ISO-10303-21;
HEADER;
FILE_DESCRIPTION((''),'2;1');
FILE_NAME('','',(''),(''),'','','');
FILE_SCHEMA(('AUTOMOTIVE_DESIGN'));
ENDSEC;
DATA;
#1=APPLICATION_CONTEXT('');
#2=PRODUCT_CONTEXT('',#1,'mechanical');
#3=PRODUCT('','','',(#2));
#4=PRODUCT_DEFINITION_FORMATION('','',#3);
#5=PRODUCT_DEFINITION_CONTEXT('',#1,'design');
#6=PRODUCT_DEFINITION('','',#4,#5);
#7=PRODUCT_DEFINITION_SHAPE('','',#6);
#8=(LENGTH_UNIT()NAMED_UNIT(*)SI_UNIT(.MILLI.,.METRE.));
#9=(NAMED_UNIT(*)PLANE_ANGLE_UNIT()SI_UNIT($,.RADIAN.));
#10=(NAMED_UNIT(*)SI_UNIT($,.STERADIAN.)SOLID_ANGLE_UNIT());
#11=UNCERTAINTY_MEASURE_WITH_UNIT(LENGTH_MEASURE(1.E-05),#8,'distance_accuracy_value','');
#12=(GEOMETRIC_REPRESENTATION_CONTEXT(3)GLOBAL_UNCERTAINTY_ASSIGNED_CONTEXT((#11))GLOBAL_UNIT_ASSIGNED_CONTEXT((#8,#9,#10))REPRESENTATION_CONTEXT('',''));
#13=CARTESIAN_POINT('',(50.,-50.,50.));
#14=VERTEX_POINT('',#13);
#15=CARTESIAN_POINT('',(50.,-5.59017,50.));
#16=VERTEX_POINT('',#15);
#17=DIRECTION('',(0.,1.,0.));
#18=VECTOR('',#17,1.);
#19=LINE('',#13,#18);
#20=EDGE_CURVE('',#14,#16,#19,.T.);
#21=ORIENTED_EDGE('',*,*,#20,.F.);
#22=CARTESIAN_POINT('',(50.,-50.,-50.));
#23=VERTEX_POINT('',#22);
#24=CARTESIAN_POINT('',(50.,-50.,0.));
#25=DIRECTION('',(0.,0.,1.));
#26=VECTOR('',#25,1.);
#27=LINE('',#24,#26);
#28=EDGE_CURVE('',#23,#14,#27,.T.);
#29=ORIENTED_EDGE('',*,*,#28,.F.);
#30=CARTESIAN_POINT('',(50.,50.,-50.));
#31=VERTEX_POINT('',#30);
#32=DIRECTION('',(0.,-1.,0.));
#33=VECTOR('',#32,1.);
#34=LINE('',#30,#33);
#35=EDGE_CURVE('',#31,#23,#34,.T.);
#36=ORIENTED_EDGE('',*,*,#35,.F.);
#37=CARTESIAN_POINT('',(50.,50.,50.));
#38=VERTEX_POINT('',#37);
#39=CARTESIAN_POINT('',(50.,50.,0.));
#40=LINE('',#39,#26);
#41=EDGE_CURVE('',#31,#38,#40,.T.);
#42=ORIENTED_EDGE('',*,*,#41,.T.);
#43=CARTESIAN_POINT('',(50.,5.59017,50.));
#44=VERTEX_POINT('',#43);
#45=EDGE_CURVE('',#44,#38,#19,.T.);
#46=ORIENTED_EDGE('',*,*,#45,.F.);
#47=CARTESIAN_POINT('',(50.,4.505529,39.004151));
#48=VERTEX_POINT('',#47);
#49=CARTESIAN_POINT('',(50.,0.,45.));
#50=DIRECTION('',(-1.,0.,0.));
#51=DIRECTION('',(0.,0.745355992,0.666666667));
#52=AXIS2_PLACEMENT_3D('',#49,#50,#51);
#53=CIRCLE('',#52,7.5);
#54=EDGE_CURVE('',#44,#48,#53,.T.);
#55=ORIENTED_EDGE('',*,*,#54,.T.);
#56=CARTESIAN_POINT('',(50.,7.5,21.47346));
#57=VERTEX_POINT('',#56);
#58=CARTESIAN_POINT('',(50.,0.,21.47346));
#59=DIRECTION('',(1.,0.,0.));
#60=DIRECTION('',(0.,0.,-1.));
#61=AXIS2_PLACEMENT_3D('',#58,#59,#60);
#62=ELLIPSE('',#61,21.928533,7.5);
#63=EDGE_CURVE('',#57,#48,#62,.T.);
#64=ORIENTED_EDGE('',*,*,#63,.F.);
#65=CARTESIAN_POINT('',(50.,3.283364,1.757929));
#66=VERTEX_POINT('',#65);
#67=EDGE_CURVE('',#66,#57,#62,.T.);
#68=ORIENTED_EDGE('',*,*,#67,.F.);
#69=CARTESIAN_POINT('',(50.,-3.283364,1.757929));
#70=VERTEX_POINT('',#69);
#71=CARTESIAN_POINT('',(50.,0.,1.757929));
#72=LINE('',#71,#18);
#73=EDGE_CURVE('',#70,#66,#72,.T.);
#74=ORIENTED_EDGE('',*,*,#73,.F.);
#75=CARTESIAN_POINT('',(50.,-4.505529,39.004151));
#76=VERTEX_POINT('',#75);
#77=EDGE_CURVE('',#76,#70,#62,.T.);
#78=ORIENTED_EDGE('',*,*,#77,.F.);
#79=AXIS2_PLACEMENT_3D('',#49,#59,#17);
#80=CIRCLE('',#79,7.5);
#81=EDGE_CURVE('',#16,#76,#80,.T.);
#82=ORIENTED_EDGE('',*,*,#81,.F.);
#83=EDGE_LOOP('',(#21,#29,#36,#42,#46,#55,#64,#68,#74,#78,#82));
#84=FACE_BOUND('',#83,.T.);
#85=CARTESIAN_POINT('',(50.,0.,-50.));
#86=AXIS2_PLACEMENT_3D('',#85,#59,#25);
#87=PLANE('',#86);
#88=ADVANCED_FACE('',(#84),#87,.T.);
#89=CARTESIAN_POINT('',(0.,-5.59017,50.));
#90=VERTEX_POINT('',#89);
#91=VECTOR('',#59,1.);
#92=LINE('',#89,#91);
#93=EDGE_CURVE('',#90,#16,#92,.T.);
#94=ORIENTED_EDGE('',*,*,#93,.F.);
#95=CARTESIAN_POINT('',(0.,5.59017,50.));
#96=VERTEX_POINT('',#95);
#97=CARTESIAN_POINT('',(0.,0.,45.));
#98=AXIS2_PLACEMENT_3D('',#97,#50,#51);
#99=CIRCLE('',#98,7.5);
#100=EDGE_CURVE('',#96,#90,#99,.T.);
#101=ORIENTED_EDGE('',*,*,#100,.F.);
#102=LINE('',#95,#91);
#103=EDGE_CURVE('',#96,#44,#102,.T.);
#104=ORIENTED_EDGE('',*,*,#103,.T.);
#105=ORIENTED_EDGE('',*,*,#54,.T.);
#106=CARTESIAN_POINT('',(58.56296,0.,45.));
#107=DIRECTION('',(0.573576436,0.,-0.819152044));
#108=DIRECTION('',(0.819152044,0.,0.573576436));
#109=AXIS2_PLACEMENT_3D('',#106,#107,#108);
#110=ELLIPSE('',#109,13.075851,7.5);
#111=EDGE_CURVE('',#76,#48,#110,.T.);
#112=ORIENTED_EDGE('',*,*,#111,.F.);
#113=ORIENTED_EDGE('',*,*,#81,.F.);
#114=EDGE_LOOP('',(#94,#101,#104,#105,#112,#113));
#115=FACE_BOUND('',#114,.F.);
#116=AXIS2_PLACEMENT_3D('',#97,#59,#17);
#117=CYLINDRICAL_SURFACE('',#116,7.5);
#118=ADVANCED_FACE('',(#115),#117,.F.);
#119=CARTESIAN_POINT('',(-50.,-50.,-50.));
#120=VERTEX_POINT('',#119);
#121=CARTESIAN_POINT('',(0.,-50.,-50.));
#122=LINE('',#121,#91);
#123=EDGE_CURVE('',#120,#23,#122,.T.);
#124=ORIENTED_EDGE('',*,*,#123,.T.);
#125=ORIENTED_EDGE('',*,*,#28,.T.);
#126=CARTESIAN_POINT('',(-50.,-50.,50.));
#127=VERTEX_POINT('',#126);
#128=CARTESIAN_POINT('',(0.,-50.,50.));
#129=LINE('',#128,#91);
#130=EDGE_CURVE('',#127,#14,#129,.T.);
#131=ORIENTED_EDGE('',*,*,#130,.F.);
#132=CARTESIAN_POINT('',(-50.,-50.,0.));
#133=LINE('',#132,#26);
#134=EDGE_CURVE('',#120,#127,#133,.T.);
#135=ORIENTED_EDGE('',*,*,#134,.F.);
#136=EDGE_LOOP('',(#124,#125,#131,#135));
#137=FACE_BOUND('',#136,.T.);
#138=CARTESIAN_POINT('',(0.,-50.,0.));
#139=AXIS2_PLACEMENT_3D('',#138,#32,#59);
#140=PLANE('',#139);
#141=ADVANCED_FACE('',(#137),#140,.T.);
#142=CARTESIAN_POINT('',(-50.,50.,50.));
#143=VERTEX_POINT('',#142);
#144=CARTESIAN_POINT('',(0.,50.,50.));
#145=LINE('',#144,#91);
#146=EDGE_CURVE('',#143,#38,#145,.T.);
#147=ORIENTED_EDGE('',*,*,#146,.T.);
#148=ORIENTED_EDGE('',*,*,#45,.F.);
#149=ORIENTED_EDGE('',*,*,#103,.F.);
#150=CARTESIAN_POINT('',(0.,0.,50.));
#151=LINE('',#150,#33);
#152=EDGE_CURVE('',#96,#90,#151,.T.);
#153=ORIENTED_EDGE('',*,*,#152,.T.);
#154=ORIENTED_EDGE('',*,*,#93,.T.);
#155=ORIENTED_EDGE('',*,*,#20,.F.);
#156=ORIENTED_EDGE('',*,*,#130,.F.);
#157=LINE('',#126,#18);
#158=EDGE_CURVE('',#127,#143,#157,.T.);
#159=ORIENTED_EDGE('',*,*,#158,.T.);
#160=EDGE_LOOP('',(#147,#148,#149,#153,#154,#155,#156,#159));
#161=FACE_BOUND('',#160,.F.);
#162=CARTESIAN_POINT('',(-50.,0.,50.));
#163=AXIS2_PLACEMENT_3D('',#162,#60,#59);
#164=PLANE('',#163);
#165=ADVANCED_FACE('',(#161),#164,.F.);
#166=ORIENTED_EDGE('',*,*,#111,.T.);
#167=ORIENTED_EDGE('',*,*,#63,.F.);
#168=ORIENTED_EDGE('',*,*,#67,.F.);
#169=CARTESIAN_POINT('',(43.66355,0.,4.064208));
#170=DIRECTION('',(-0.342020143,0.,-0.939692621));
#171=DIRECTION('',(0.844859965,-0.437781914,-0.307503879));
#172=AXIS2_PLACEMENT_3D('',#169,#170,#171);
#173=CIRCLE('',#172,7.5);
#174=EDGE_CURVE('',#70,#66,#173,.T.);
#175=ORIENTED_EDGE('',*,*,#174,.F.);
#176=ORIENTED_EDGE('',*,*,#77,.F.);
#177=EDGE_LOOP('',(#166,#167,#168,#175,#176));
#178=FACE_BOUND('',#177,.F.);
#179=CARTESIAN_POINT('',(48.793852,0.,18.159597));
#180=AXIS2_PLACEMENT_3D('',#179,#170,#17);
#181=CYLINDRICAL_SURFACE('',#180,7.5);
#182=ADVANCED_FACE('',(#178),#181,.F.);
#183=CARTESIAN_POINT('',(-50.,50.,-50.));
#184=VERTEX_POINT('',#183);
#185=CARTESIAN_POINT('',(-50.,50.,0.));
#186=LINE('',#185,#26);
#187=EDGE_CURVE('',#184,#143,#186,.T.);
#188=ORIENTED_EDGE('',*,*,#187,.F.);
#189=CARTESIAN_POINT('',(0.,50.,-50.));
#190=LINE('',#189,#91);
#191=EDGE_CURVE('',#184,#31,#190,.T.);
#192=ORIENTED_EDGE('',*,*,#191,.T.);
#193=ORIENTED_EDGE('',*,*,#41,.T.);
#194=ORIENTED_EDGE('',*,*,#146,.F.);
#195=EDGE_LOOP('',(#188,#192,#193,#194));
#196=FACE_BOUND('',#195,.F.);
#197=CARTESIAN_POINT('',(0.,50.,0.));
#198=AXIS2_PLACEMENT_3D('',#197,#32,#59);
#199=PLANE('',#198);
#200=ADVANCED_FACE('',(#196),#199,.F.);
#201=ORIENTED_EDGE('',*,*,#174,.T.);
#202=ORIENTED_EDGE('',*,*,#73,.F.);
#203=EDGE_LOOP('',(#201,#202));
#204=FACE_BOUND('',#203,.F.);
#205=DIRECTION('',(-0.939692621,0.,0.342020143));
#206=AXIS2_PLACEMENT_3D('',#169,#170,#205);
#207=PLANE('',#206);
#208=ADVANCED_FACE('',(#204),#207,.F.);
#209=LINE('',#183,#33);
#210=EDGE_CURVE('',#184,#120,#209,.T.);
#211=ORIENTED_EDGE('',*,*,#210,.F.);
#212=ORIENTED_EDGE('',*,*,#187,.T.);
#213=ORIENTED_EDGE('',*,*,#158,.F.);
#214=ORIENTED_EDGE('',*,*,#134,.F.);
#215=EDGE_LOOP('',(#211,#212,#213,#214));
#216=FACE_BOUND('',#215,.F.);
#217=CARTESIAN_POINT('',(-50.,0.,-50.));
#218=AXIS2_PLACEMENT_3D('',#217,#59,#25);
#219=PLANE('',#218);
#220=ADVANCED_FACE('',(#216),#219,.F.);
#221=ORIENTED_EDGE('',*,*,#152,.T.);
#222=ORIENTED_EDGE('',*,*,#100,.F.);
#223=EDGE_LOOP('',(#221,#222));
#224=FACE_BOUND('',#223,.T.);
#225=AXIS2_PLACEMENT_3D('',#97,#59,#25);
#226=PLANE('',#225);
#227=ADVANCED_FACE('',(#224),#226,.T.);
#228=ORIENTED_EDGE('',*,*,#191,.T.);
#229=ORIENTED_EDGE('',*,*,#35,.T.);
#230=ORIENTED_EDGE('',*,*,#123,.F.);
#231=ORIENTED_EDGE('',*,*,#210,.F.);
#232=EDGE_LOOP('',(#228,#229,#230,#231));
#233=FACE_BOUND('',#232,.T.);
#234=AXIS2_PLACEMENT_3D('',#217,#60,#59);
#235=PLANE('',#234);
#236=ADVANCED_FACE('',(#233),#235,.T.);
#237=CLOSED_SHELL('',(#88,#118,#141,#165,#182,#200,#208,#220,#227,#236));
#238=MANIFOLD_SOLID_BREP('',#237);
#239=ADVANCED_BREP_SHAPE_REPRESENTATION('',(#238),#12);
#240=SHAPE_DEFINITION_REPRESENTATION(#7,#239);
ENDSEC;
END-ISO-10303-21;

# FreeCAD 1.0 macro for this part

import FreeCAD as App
import Part
import Sketcher
Q = App.Units.Quantity


def add_polygon(sketch, points):
    """Adds a closed chain of lines whose ends are joined by coincident constraints."""
    first, n = sketch.GeometryCount, len(points)
    for a, b in zip(points, points[1:] + points[:1]):
        sketch.addGeometry(Part.LineSegment(App.Vector(*a, 0), App.Vector(*b, 0)), False)
    for i in range(n):
        sketch.addConstraint(Sketcher.Constraint("Coincident", first + i, 2, first + (i + 1) % n, 1))

doc = App.newDocument("Part")
body = doc.addObject("PartDesign::Body", "Body")

# Sketch on XZ plane
sketch1 = body.newObject("Sketcher::SketchObject", "Sketch")
sketch1.AttachmentSupport = (doc.getObject("XZ_Plane"), [""])
sketch1.MapMode = "FlatFace"
add_polygon(sketch1, [(-50, 50), (-50, -50), (50, -50), (50, 50)])  # lines 0-3
sketch1.addConstraint([
    Sketcher.Constraint("Vertical", 0),
    Sketcher.Constraint("Horizontal", 1),
    Sketcher.Constraint("Vertical", 2),
    Sketcher.Constraint("Horizontal", 3),
    Sketcher.Constraint("Symmetric", 0, 2, 2, 2, -1, 1),
    Sketcher.Constraint("Equal", 3, 0),
    Sketcher.Constraint("DistanceX", 1, 1, 1, 2, Q("100 mm")),
])
pad1 = body.newObject("PartDesign::Pad", "Pad")
pad1.Profile = sketch1
pad1.Type = "TwoLengths"
pad1.Length = 50
pad1.Length2 = 50

# Sketch on YZ plane
sketch2 = body.newObject("Sketcher::SketchObject", "Sketch001")
sketch2.AttachmentSupport = (doc.getObject("YZ_Plane"), [""])
sketch2.MapMode = "FlatFace"
sketch2.addGeometry(Part.Circle(App.Vector(0, 45, 0), App.Vector(0, 0, 1), 8), False)
sketch2.addConstraint([
    Sketcher.Constraint("PointOnObject", 0, 3, -2),
    Sketcher.Constraint("Diameter", 0, Q("15 mm")),
    Sketcher.Constraint("DistanceY", -1, 1, 0, 3, Q("45 mm")),
])

# Sketch on XZ plane
sketch3 = body.newObject("Sketcher::SketchObject", "Sketch002")
sketch3.AttachmentSupport = (doc.getObject("XZ_Plane"), [""])
sketch3.MapMode = "FlatFace"
sketch3.addGeometry([
    Part.LineSegment(App.Vector(0, 25, 0), App.Vector(30, 25, 0)),
    Part.LineSegment(App.Vector(30, 25, 0), App.Vector(25, 11, 0)),
], False)
sketch3.addConstraint([
    Sketcher.Constraint("Coincident", 0, 2, 1, 1),
    Sketcher.Constraint("Horizontal", 0),
    Sketcher.Constraint("PointOnObject", 0, 1, -2),
    Sketcher.Constraint("DistanceX", 0, 1, 0, 2, Q("30 mm")),
    Sketcher.Constraint("Angle", 1, Q("-110 deg")),
    Sketcher.Constraint("Distance", 1, Q("15 mm")),
    Sketcher.Constraint("DistanceY", -1, 1, 0, 1, Q("25 mm")),
])
doc.recompute()

subtractivepipe = body.newObject("PartDesign::SubtractivePipe", "SubtractivePipe")
subtractivepipe.Profile = sketch2
subtractivepipe.Spine = (sketch3, ["Edge1", "Edge2"])
subtractivepipe.Transition = "Right corner"

doc.recompute()
